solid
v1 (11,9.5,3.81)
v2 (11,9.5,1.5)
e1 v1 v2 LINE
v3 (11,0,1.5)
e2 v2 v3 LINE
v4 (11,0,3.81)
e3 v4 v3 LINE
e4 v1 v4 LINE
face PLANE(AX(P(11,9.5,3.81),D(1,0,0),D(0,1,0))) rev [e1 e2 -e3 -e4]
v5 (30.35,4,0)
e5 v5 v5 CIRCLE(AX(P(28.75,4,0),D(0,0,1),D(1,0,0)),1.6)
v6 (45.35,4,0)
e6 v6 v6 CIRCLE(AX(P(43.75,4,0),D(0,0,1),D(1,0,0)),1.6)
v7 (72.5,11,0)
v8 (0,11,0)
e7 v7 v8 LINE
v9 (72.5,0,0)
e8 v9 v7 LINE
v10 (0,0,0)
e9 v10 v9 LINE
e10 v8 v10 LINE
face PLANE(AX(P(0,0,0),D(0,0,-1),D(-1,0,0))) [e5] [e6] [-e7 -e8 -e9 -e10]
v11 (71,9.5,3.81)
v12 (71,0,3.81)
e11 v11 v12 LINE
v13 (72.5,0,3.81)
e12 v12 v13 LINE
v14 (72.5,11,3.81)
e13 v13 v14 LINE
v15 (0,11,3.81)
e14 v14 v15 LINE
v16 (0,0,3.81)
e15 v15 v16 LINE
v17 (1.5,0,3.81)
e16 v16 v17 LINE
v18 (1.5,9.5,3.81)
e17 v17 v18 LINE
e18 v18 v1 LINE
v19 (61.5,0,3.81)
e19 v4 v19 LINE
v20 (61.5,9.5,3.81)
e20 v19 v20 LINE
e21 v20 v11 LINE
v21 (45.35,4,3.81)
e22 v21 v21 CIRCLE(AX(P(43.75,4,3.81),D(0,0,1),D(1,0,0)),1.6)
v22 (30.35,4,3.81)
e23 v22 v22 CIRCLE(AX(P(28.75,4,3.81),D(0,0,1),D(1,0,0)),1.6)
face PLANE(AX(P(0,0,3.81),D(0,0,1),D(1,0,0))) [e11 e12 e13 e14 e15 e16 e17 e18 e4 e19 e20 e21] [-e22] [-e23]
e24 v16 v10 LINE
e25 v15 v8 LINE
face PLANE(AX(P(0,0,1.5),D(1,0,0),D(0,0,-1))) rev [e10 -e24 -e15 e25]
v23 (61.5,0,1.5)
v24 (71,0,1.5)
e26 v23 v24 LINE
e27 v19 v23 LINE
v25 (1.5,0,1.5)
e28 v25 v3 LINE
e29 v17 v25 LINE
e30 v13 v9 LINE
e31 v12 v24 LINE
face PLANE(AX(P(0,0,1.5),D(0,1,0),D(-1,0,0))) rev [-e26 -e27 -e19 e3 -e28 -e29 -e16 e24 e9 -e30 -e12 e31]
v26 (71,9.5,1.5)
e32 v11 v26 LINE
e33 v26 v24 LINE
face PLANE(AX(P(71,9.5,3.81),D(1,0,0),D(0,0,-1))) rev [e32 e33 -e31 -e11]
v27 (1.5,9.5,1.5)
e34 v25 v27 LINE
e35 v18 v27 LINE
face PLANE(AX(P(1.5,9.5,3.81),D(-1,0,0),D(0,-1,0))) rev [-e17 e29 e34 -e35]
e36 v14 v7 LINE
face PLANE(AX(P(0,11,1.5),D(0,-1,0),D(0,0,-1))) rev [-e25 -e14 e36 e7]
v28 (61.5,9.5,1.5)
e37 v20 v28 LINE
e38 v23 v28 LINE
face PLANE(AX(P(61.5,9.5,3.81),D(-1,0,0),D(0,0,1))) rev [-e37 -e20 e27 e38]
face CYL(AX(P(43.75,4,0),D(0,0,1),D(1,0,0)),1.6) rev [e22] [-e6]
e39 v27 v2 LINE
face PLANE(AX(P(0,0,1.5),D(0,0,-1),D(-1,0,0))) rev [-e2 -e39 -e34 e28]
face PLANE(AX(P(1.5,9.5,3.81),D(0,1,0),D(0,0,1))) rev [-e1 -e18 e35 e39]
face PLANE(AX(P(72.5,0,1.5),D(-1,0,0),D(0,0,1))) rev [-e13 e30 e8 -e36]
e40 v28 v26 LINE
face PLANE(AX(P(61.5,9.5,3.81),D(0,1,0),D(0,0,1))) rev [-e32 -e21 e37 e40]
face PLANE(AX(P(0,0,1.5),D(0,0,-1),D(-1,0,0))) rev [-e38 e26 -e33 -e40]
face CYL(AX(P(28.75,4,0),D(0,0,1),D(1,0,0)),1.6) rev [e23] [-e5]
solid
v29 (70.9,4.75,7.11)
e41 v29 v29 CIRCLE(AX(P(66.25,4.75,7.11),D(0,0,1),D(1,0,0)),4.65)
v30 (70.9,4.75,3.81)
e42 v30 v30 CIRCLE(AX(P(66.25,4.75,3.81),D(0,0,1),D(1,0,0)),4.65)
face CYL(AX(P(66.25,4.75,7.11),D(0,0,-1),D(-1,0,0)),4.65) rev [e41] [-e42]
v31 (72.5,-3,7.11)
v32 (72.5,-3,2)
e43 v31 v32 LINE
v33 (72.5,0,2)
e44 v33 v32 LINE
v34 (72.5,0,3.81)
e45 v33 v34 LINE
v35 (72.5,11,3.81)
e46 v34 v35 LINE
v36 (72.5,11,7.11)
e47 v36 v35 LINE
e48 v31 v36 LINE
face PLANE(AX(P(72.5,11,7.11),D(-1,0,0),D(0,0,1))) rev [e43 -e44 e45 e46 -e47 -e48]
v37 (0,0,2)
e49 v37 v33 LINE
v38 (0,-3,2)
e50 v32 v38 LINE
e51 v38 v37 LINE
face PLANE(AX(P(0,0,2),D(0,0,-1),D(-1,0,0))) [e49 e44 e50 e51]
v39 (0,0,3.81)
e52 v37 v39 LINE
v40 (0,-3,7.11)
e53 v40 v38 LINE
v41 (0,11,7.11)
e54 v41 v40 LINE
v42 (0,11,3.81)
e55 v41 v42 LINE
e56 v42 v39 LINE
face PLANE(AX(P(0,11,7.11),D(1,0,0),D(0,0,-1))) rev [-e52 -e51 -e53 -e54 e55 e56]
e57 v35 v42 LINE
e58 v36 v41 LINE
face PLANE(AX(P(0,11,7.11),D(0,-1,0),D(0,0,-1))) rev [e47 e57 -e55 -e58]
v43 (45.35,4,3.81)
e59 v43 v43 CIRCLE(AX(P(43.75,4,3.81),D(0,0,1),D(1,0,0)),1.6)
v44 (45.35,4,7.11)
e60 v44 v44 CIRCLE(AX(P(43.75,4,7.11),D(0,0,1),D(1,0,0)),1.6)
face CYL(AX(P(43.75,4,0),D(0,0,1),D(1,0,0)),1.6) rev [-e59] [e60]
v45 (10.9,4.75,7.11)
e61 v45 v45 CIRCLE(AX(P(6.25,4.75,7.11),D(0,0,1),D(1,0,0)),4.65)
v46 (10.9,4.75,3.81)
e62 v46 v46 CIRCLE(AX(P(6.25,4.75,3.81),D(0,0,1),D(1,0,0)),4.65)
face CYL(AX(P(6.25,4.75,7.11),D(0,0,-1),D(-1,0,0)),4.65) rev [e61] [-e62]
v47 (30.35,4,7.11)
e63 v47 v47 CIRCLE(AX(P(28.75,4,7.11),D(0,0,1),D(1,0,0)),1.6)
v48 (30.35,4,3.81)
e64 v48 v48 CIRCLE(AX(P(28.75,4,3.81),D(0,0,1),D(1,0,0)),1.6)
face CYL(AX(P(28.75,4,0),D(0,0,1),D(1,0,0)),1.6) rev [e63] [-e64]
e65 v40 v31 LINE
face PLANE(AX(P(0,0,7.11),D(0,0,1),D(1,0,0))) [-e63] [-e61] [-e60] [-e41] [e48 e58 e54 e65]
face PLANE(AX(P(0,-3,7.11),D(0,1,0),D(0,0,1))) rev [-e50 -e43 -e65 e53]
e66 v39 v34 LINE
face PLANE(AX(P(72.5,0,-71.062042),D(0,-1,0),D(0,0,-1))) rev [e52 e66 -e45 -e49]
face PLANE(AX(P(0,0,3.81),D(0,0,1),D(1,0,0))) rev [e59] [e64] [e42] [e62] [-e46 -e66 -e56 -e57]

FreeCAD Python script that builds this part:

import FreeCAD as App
import Part
import Sketcher
Q = App.Units.Quantity


def add_polygon(sketch, points):
    """Adds a closed chain of lines whose ends are joined by coincident constraints."""
    first, n = sketch.GeometryCount, len(points)
    for a, b in zip(points, points[1:] + points[:1]):
        sketch.addGeometry(Part.LineSegment(App.Vector(*a, 0), App.Vector(*b, 0)), False)
    for i in range(n):
        sketch.addConstraint(Sketcher.Constraint("Coincident", first + i, 2, first + (i + 1) % n, 1))

doc = App.newDocument("Part")
params = doc.addObject("Spreadsheet::Sheet", "Params")
for row, (alias, value) in enumerate([
    ("sketch1_height", "11 mm"),
    ("sketch1_width", "72.5 mm"),
    ("pad1_length", "1.5 mm"),
    ("sketch2_height", "11 mm"),
    ("sketch2_width", "9.5 mm"),
    ("sketch2_width2", "50.5 mm"),
    ("sketch2_width3", "1.5 mm"),
    ("pad2_length", "2.31 mm"),
    ("sketch3_diameter", "9.3 mm"),
    ("sketch3_height", "14 mm"),
    ("sketch3_width", "72.5 mm"),
    ("pad3_length", "3.3 mm"),
    ("sketch4_height", "3 mm"),
    ("sketch4_width", "72.5 mm"),
    ("pad4_length", "1.81 mm"),
    ("sketch5_diameter", "3.2 mm"),
    ("pad5_length", "74.673619 mm"),
], start=1):
    params.set(f"A{row}", alias)
    params.set(f"B{row}", "=" + value)
    params.setAlias(f"B{row}", alias)

body = doc.addObject("PartDesign::Body", "Body")

# Sketch on XY plane
sketch1 = body.newObject("Sketcher::SketchObject", "Sketch")
sketch1.AttachmentSupport = (doc.getObject("XY_Plane"), [""])
sketch1.MapMode = "FlatFace"
add_polygon(sketch1, [(0, 11), (0, 0), (72, 0), (72, 11)])  # lines 0-3
sketch1.addConstraint([
    Sketcher.Constraint("Vertical", 0),
    Sketcher.Constraint("Horizontal", 1),
    Sketcher.Constraint("Vertical", 2),
    Sketcher.Constraint("Horizontal", 3),
    Sketcher.Constraint("Coincident", 0, 2, -1, 1),
    Sketcher.Constraint("DistanceY", 0, 2, 0, 1, Q("11 mm")),
    Sketcher.Constraint("DistanceX", 1, 1, 1, 2, Q("72.5 mm")),
])
sketch1.setExpression("Constraints[9]", "Params.sketch1_height")
sketch1.setExpression("Constraints[10]", "Params.sketch1_width")
pad1 = body.newObject("PartDesign::Pad", "Pad")
pad1.Profile = sketch1
pad1.setExpression("Length", "Params.pad1_length")

# Sketch on XY plane
sketch2 = body.newObject("Sketcher::SketchObject", "Sketch001")
sketch2.AttachmentSupport = (doc.getObject("XY_Plane"), [""])
sketch2.MapMode = "FlatFace"
sketch2.AttachmentOffset = App.Placement(App.Vector(0, 0, 1.5), App.Rotation())
add_polygon(sketch2, [(1.5, 9.5), (11, 9.5), (11, 0), (61.5, 0), (61.5, 9.5), (71, 9.5), (71, 0), (72.5, 0), (72.5, 11), (0, 11), (0, 0), (1.5, 0)])  # lines 0-11
sketch2.addConstraint([
    Sketcher.Constraint("Horizontal", 0),
    Sketcher.Constraint("Vertical", 1),
    Sketcher.Constraint("Horizontal", 2),
    Sketcher.Constraint("Vertical", 3),
    Sketcher.Constraint("Horizontal", 4),
    Sketcher.Constraint("Vertical", 5),
    Sketcher.Constraint("Horizontal", 6),
    Sketcher.Constraint("Vertical", 7),
    Sketcher.Constraint("Horizontal", 8),
    Sketcher.Constraint("Vertical", 9),
    Sketcher.Constraint("Horizontal", 10),
    Sketcher.Constraint("Vertical", 11),
    Sketcher.Constraint("Coincident", 9, 2, -1, 1),
    Sketcher.Constraint("PointOnObject", 1, 2, -1),
    Sketcher.Constraint("PointOnObject", 5, 2, -1),
    Sketcher.Constraint("Horizontal", 0, 2, 3, 2),
    Sketcher.Constraint("Equal", 0, 4),
    Sketcher.Constraint("Equal", 6, 10),
    Sketcher.Constraint("Equal", 4, 1),
    Sketcher.Constraint("DistanceY", 7, 1, 7, 2, Q("11 mm")),
    Sketcher.Constraint("DistanceX", 0, 1, 0, 2, Q("9.5 mm")),
    Sketcher.Constraint("DistanceX", 2, 1, 2, 2, Q("50.5 mm")),
    Sketcher.Constraint("DistanceX", 6, 1, 6, 2, Q("1.5 mm")),
])
sketch2.setExpression("Constraints[31]", "Params.sketch2_height")
sketch2.setExpression("Constraints[32]", "Params.sketch2_width")
sketch2.setExpression("Constraints[33]", "Params.sketch2_width2")
sketch2.setExpression("Constraints[34]", "Params.sketch2_width3")
pad2 = body.newObject("PartDesign::Pad", "Pad001")
pad2.Profile = sketch2
pad2.setExpression("Length", "Params.pad2_length")
body2 = doc.addObject("PartDesign::Body", "Body001")

# Sketch on XY plane
sketch3 = body2.newObject("Sketcher::SketchObject", "Sketch002")
sketch3.AttachmentSupport = (doc.getObject("XY_Plane001"), [""])
sketch3.MapMode = "FlatFace"
sketch3.AttachmentOffset = App.Placement(App.Vector(0, 0, 3.81), App.Rotation())
add_polygon(sketch3, [(0, 11), (0, -3), (72.5, -3), (72.5, 11)])  # lines 0-3
sketch3.addGeometry(Part.Circle(App.Vector(6.2, 4.8, 0), App.Vector(0, 0, 1), 4.7), False)  # 4
sketch3.addGeometry(Part.Circle(App.Vector(66.2, 4.8, 0), App.Vector(0, 0, 1), 4.7), False)  # 5
sketch3.addConstraint([
    Sketcher.Constraint("Vertical", 0),
    Sketcher.Constraint("Horizontal", 1),
    Sketcher.Constraint("Vertical", 2),
    Sketcher.Constraint("Horizontal", 3),
    Sketcher.Constraint("Equal", 4, 5),
    Sketcher.Constraint("PointOnObject", 0, 2, -2),
    Sketcher.Constraint("Horizontal", 4, 3, 5, 3),
    Sketcher.Constraint("Diameter", 4, Q("9.3 mm")),
    Sketcher.Constraint("DistanceY", 0, 2, 0, 1, Q("14 mm")),
    Sketcher.Constraint("DistanceX", 1, 1, 1, 2, Q("72.5 mm")),
    Sketcher.Constraint("DistanceY", 0, 2, -1, 1, Q("3 mm")),
    Sketcher.Constraint("DistanceX", 4, 3, 5, 3, Q("60 mm")),
    Sketcher.Constraint("DistanceX", -1, 1, 4, 3, Q("6.25 mm")),
    Sketcher.Constraint("DistanceY", -1, 1, 4, 3, Q("4.75 mm")),
])
sketch3.setExpression("Constraints[11]", "Params.sketch3_diameter")
sketch3.setExpression("Constraints[12]", "Params.sketch3_height")
sketch3.setExpression("Constraints[13]", "Params.sketch3_width")
pad3 = body2.newObject("PartDesign::Pad", "Pad002")
pad3.Profile = sketch3
pad3.setExpression("Length", "Params.pad3_length")

# Sketch on XY plane
sketch4 = body2.newObject("Sketcher::SketchObject", "Sketch003")
sketch4.AttachmentSupport = (doc.getObject("XY_Plane001"), [""])
sketch4.MapMode = "FlatFace"
sketch4.AttachmentOffset = App.Placement(App.Vector(0, 0, 3.81), App.Rotation())
add_polygon(sketch4, [(72.5, 0), (72.5, -3), (0, -3), (0, 0)])  # lines 0-3
sketch4.addConstraint([
    Sketcher.Constraint("Vertical", 0),
    Sketcher.Constraint("Horizontal", 1),
    Sketcher.Constraint("Vertical", 2),
    Sketcher.Constraint("Horizontal", 3),
    Sketcher.Constraint("Coincident", 2, 2, -1, 1),
    Sketcher.Constraint("DistanceY", 0, 2, 0, 1, Q("3 mm")),
    Sketcher.Constraint("DistanceX", 1, 2, 1, 1, Q("72.5 mm")),
])
sketch4.setExpression("Constraints[9]", "Params.sketch4_height")
sketch4.setExpression("Constraints[10]", "Params.sketch4_width")
pad4 = body2.newObject("PartDesign::Pad", "Pad003")
pad4.Profile = sketch4
pad4.setExpression("Length", "Params.pad4_length")
pad4.Reversed = True
body3 = doc.addObject("PartDesign::Body", "Body002")
body3.AllowCompound = True

# Sketch on XY plane
sketch5 = body3.newObject("Sketcher::SketchObject", "Sketch004")
sketch5.AttachmentSupport = (doc.getObject("XY_Plane002"), [""])
sketch5.MapMode = "FlatFace"
sketch5.AttachmentOffset = App.Placement(App.Vector(0, 0, 7.11), App.Rotation())
sketch5.addGeometry([
    Part.Circle(App.Vector(28.8, 4, 0), App.Vector(0, 0, 1), 1.6),
    Part.Circle(App.Vector(43.8, 4, 0), App.Vector(0, 0, 1), 1.6),
], False)
sketch5.addConstraint([
    Sketcher.Constraint("Equal", 0, 1),
    Sketcher.Constraint("Horizontal", 0, 3, 1, 3),
    Sketcher.Constraint("Diameter", 0, Q("3.2 mm")),
    Sketcher.Constraint("DistanceY", -1, 1, 0, 3, Q("4 mm")),
    Sketcher.Constraint("DistanceX", 0, 3, 1, 3, Q("15 mm")),
    Sketcher.Constraint("DistanceX", -1, 1, 0, 3, Q("28.75 mm")),
])
sketch5.setExpression("Constraints[2]", "Params.sketch5_diameter")
pad5 = body3.newObject("PartDesign::Pad", "Pad004")
pad5.Profile = sketch5
pad5.setExpression("Length", "Params.pad5_length")
pad5.Reversed = True
doc.recompute()

body4 = doc.addObject("PartDesign::Body", "Body003")
body4.BaseFeature = body3
boolean = body.newObject("PartDesign::Boolean", "Boolean")
boolean.Type = "Cut"
boolean.addObjects([body4])
doc.recompute()

boolean2 = body2.newObject("PartDesign::Boolean", "Boolean001")
boolean2.Type = "Cut"
boolean2.addObjects([body3])

doc.recompute()
